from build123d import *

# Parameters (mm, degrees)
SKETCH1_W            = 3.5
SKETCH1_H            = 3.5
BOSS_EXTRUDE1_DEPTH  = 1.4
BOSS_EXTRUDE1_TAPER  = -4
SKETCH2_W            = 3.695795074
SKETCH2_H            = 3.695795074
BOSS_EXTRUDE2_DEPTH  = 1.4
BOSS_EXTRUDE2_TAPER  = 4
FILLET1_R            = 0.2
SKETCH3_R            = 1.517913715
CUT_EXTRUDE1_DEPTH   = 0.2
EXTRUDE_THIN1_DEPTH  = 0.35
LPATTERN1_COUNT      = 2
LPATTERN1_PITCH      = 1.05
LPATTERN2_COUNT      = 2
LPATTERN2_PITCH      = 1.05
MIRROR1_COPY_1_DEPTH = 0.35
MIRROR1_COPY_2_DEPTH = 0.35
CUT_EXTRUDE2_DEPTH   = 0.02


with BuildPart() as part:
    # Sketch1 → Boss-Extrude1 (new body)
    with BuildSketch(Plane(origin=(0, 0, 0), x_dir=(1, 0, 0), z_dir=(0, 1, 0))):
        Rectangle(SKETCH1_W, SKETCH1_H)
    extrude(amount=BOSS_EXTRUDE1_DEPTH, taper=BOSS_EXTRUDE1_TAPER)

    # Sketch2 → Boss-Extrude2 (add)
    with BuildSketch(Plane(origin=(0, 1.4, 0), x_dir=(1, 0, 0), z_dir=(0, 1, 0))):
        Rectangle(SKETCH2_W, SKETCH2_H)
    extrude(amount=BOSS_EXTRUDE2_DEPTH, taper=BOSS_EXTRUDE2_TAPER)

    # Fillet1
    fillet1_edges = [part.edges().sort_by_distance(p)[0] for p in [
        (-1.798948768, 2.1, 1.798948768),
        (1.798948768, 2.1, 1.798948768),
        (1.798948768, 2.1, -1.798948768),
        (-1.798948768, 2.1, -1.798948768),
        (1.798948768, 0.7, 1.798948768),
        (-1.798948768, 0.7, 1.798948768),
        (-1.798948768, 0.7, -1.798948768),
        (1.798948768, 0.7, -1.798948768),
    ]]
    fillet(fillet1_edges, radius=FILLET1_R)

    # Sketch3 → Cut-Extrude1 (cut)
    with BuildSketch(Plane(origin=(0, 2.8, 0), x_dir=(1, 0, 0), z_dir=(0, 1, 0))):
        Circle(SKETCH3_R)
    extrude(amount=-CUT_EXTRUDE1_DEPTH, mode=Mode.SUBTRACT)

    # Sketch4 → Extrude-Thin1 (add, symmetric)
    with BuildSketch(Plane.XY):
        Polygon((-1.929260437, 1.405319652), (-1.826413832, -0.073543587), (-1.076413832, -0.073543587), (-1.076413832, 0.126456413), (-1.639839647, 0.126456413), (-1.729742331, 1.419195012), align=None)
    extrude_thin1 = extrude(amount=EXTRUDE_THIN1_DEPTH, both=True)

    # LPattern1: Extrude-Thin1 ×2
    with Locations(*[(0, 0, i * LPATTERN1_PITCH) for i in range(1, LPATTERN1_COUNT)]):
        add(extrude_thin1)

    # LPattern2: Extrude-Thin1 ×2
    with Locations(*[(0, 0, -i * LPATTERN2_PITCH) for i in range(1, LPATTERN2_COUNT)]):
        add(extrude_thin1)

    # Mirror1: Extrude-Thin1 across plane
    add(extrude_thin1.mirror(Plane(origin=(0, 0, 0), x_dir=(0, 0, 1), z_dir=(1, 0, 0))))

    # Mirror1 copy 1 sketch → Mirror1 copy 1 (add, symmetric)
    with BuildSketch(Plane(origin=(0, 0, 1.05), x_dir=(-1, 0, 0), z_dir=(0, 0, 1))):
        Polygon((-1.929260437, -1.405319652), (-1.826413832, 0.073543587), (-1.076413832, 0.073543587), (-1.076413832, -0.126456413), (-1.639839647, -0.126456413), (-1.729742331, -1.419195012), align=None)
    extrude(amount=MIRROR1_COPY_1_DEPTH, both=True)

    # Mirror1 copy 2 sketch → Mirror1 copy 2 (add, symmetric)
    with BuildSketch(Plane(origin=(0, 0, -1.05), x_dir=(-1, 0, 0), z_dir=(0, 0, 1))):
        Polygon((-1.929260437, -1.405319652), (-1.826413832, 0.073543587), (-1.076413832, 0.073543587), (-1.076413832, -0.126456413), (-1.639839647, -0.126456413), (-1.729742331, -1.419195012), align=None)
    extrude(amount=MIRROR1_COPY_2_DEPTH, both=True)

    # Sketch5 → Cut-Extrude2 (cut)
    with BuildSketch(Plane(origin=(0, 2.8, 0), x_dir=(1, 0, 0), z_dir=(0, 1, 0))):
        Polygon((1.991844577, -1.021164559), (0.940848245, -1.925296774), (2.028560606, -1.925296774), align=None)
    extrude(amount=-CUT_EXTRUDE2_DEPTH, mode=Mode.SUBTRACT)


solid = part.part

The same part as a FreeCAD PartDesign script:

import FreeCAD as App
import Part
import Sketcher
from FreeCAD import Vector
Q = App.Units.Quantity


def edges_at(feature, points):
    """Names of the edges that pass closest to the given points."""
    edges = feature.Shape.Edges
    near = lambda p: min(range(len(edges)), key=lambda i: edges[i].distToShape(Part.Vertex(*p))[0])
    return sorted({f"Edge{near(p) + 1}" for p in points})

doc = App.newDocument("Part")
body = doc.addObject("PartDesign::Body", "Body")

# Sketch on XZ plane
sketch1 = doc.addObject("Sketcher::SketchObject", "Sketch")
body.addObject(sketch1)
sketch1.AttachmentSupport = (doc.XZ_Plane, [""])
sketch1.MapMode = "FlatFace"
sketch1.addGeometry([
    Part.LineSegment(Vector(-1.8, -1.8, 0), Vector(-1.8, 1.8, 0)),
    Part.LineSegment(Vector(-1.8, 1.8, 0), Vector(1.8, 1.8, 0)),
    Part.LineSegment(Vector(1.8, 1.8, 0), Vector(1.8, -1.8, 0)),
    Part.LineSegment(Vector(1.8, -1.8, 0), Vector(-1.8, -1.8, 0)),
], False)
sketch1.addConstraint([
    Sketcher.Constraint("Coincident", 0, 2, 1, 1),
    Sketcher.Constraint("Coincident", 1, 2, 2, 1),
    Sketcher.Constraint("Coincident", 2, 2, 3, 1),
    Sketcher.Constraint("Coincident", 3, 2, 0, 1),
    Sketcher.Constraint("Vertical", 0),
    Sketcher.Constraint("Horizontal", 1),
    Sketcher.Constraint("Vertical", 2),
    Sketcher.Constraint("Horizontal", 3),
    Sketcher.Constraint("Symmetric", 0, 2, 2, 2, -1, 1),
    Sketcher.Constraint("Equal", 3, 0),
    Sketcher.Constraint("DistanceX", 1, 1, 1, 2, Q("3.5 mm")),
])
pad1 = doc.addObject("PartDesign::Pad", "Pad")
body.addObject(pad1)
pad1.Profile = sketch1
pad1.Length = 1.4
pad1.Reversed = True
pad1.TaperAngle = 4

# Sketch on XZ plane
sketch2 = doc.addObject("Sketcher::SketchObject", "Sketch001")
body.addObject(sketch2)
sketch2.AttachmentSupport = (doc.XZ_Plane, [""])
sketch2.MapMode = "FlatFace"
sketch2.AttachmentOffset = App.Placement(Vector(0, 0, -1.4), App.Rotation())
sketch2.addGeometry([
    Part.LineSegment(Vector(-1.8, -1.8, 0), Vector(-1.8, 1.8, 0)),
    Part.LineSegment(Vector(-1.8, 1.8, 0), Vector(1.8, 1.8, 0)),
    Part.LineSegment(Vector(1.8, 1.8, 0), Vector(1.8, -1.8, 0)),
    Part.LineSegment(Vector(1.8, -1.8, 0), Vector(-1.8, -1.8, 0)),
], False)
sketch2.addConstraint([
    Sketcher.Constraint("Coincident", 0, 2, 1, 1),
    Sketcher.Constraint("Coincident", 1, 2, 2, 1),
    Sketcher.Constraint("Coincident", 2, 2, 3, 1),
    Sketcher.Constraint("Coincident", 3, 2, 0, 1),
    Sketcher.Constraint("Vertical", 0),
    Sketcher.Constraint("Horizontal", 1),
    Sketcher.Constraint("Vertical", 2),
    Sketcher.Constraint("Horizontal", 3),
    Sketcher.Constraint("Symmetric", 0, 2, 2, 2, -1, 1),
    Sketcher.Constraint("Equal", 3, 0),
    Sketcher.Constraint("DistanceX", 1, 1, 1, 2, Q("3.695795 mm")),
])
pad2 = doc.addObject("PartDesign::Pad", "Pad001")
body.addObject(pad2)
pad2.Profile = sketch2
pad2.Length = 1.4
pad2.Reversed = True
pad2.TaperAngle = -4
doc.recompute()

fillet = doc.addObject("PartDesign::Fillet", "Fillet")
body.addObject(fillet)
fillet.Base = (pad2, edges_at(pad2, [
    (-1.799, 2.1, 1.799),
    (1.799, 2.1, 1.799),
    (1.799, 2.1, -1.799),
    (-1.799, 2.1, -1.799),
    (1.799, 0.7, 1.799),
    (-1.799, 0.7, 1.799),
    (-1.799, 0.7, -1.799),
    (1.799, 0.7, -1.799),
]))
fillet.Radius = 0.2

# Sketch on XZ plane
sketch3 = doc.addObject("Sketcher::SketchObject", "Sketch002")
body.addObject(sketch3)
sketch3.AttachmentSupport = (doc.XZ_Plane, [""])
sketch3.MapMode = "FlatFace"
sketch3.AttachmentOffset = App.Placement(Vector(0, 0, -2.8), App.Rotation())
sketch3.addGeometry(Part.Circle(Vector(0, 0, 0), Vector(0, 0, 1), 1.5), False)
sketch3.addConstraint([
    Sketcher.Constraint("Coincident", 0, 3, -1, 1),
    Sketcher.Constraint("Diameter", 0, Q("3.035827 mm")),
])
pocket1 = doc.addObject("PartDesign::Pocket", "Pocket")
body.addObject(pocket1)
pocket1.Profile = sketch3
pocket1.Length = 0.2
pocket1.Reversed = True

# Sketch on XY plane
sketch4 = doc.addObject("Sketcher::SketchObject", "Sketch003")
body.addObject(sketch4)
sketch4.AttachmentSupport = (doc.XY_Plane, [""])
sketch4.MapMode = "FlatFace"
sketch4.addGeometry([
    Part.LineSegment(Vector(-1.93, 1.41, 0), Vector(-1.83, -0.07, 0)),  # 0
    Part.LineSegment(Vector(-1.83, -0.07, 0), Vector(-1.08, -0.07, 0)),  # 1
    Part.LineSegment(Vector(-1.08, -0.07, 0), Vector(-1.08, 0.13, 0)),  # 2
    Part.LineSegment(Vector(-1.08, 0.13, 0), Vector(-1.64, 0.13, 0)),  # 3
    Part.LineSegment(Vector(-1.64, 0.13, 0), Vector(-1.73, 1.42, 0)),  # 4
    Part.LineSegment(Vector(-1.73, 1.42, 0), Vector(-1.93, 1.41, 0)),  # 5
], False)
sketch4.addConstraint([
    Sketcher.Constraint("Coincident", 0, 2, 1, 1),
    Sketcher.Constraint("Coincident", 1, 2, 2, 1),
    Sketcher.Constraint("Coincident", 2, 2, 3, 1),
    Sketcher.Constraint("Coincident", 3, 2, 4, 1),
    Sketcher.Constraint("Coincident", 4, 2, 5, 1),
    Sketcher.Constraint("Coincident", 5, 2, 0, 1),
    Sketcher.Constraint("Horizontal", 1),
    Sketcher.Constraint("Vertical", 2),
    Sketcher.Constraint("Horizontal", 3),
    Sketcher.Constraint("Parallel", 0, 4),
    Sketcher.Constraint("Perpendicular", 4, 5),
    Sketcher.Constraint("DistanceY", 2, 1, 2, 2, Q("0.2 mm")),
    Sketcher.Constraint("Distance", 5, Q("0.2 mm")),
    Sketcher.Constraint("DistanceX", 1, 1, 1, 2, Q("0.75 mm")),
    Sketcher.Constraint("Distance", 4, Q("1.295861 mm")),
    Sketcher.Constraint("DistanceX", 3, 2, 3, 1, Q("0.563426 mm")),
    Sketcher.Constraint("DistanceX", 3, 2, -1, 1, Q("1.63984 mm")),
    Sketcher.Constraint("DistanceY", -1, 1, 5, 2, Q("1.40532 mm")),
])
pad3 = doc.addObject("PartDesign::Pad", "Pad002")
body.addObject(pad3)
pad3.Profile = sketch4
pad3.Length = 0.7
pad3.Midplane = True
doc.recompute()

linearpattern = doc.addObject("PartDesign::LinearPattern", "LinearPattern")
body.addObject(linearpattern)
linearpattern.Originals = [pad3]
linearpattern.Direction = (doc.Z_Axis, [""])
linearpattern.Mode = "offset"
linearpattern.Offset = 1.05
linearpattern.Occurrences = 2
body.Tip = linearpattern
doc.recompute()

linearpattern2 = doc.addObject("PartDesign::LinearPattern", "LinearPattern001")
body.addObject(linearpattern2)
linearpattern2.Originals = [pad3]
linearpattern2.Direction = (doc.Z_Axis, [""])
linearpattern2.Mode = "offset"
linearpattern2.Offset = 1.05
linearpattern2.Occurrences = 2
linearpattern2.Reversed = True
body.Tip = linearpattern2
doc.recompute()

mirrored = doc.addObject("PartDesign::Mirrored", "Mirrored")
body.addObject(mirrored)
mirrored.Originals = [pad3]
mirrored.MirrorPlane = (doc.YZ_Plane, [""])
body.Tip = mirrored

# Sketch on XY plane
sketch5 = doc.addObject("Sketcher::SketchObject", "Sketch004")
body.addObject(sketch5)
sketch5.AttachmentSupport = (doc.XY_Plane, [""])
sketch5.MapMode = "FlatFace"
sketch5.AttachmentOffset = App.Placement(Vector(0, 0, 1.05), App.Rotation())
sketch5.addGeometry([
    Part.LineSegment(Vector(1.83, -0.07, 0), Vector(1.93, 1.41, 0)),  # 0
    Part.LineSegment(Vector(1.93, 1.41, 0), Vector(1.73, 1.42, 0)),  # 1
    Part.LineSegment(Vector(1.73, 1.42, 0), Vector(1.64, 0.13, 0)),  # 2
    Part.LineSegment(Vector(1.64, 0.13, 0), Vector(1.08, 0.13, 0)),  # 3
    Part.LineSegment(Vector(1.08, 0.13, 0), Vector(1.08, -0.07, 0)),  # 4
    Part.LineSegment(Vector(1.08, -0.07, 0), Vector(1.83, -0.07, 0)),  # 5
], False)
sketch5.addConstraint([
    Sketcher.Constraint("Coincident", 0, 2, 1, 1),
    Sketcher.Constraint("Coincident", 1, 2, 2, 1),
    Sketcher.Constraint("Coincident", 2, 2, 3, 1),
    Sketcher.Constraint("Coincident", 3, 2, 4, 1),
    Sketcher.Constraint("Coincident", 4, 2, 5, 1),
    Sketcher.Constraint("Coincident", 5, 2, 0, 1),
    Sketcher.Constraint("Horizontal", 3),
    Sketcher.Constraint("Vertical", 4),
    Sketcher.Constraint("Horizontal", 5),
    Sketcher.Constraint("Perpendicular", 0, 1),
    Sketcher.Constraint("Perpendicular", 1, 2),
    Sketcher.Constraint("DistanceY", 4, 2, 4, 1, Q("0.2 mm")),
    Sketcher.Constraint("Distance", 1, Q("0.2 mm")),
    Sketcher.Constraint("DistanceX", 5, 1, 5, 2, Q("0.75 mm")),
    Sketcher.Constraint("Distance", 2, Q("1.295861 mm")),
    Sketcher.Constraint("DistanceX", 3, 2, 3, 1, Q("0.563426 mm")),
    Sketcher.Constraint("DistanceX", -1, 1, 0, 2, Q("1.92926 mm")),
    Sketcher.Constraint("DistanceY", -1, 1, 0, 2, Q("1.40532 mm")),
])
pad4 = doc.addObject("PartDesign::Pad", "Pad003")
body.addObject(pad4)
pad4.Profile = sketch5
pad4.Length = 0.7
pad4.Midplane = True

# Sketch on XY plane
sketch6 = doc.addObject("Sketcher::SketchObject", "Sketch005")
body.addObject(sketch6)
sketch6.AttachmentSupport = (doc.XY_Plane, [""])
sketch6.MapMode = "FlatFace"
sketch6.AttachmentOffset = App.Placement(Vector(0, 0, -1.05), App.Rotation())
sketch6.addGeometry([
    Part.LineSegment(Vector(1.83, -0.07, 0), Vector(1.93, 1.41, 0)),  # 0
    Part.LineSegment(Vector(1.93, 1.41, 0), Vector(1.73, 1.42, 0)),  # 1
    Part.LineSegment(Vector(1.73, 1.42, 0), Vector(1.64, 0.13, 0)),  # 2
    Part.LineSegment(Vector(1.64, 0.13, 0), Vector(1.08, 0.13, 0)),  # 3
    Part.LineSegment(Vector(1.08, 0.13, 0), Vector(1.08, -0.07, 0)),  # 4
    Part.LineSegment(Vector(1.08, -0.07, 0), Vector(1.83, -0.07, 0)),  # 5
], False)
sketch6.addConstraint([
    Sketcher.Constraint("Coincident", 0, 2, 1, 1),
    Sketcher.Constraint("Coincident", 1, 2, 2, 1),
    Sketcher.Constraint("Coincident", 2, 2, 3, 1),
    Sketcher.Constraint("Coincident", 3, 2, 4, 1),
    Sketcher.Constraint("Coincident", 4, 2, 5, 1),
    Sketcher.Constraint("Coincident", 5, 2, 0, 1),
    Sketcher.Constraint("Horizontal", 3),
    Sketcher.Constraint("Vertical", 4),
    Sketcher.Constraint("Horizontal", 5),
    Sketcher.Constraint("Perpendicular", 0, 1),
    Sketcher.Constraint("Perpendicular", 1, 2),
    Sketcher.Constraint("DistanceY", 4, 2, 4, 1, Q("0.2 mm")),
    Sketcher.Constraint("Distance", 1, Q("0.2 mm")),
    Sketcher.Constraint("DistanceX", 5, 1, 5, 2, Q("0.75 mm")),
    Sketcher.Constraint("Distance", 2, Q("1.295861 mm")),
    Sketcher.Constraint("DistanceX", 3, 2, 3, 1, Q("0.563426 mm")),
    Sketcher.Constraint("DistanceX", -1, 1, 0, 2, Q("1.92926 mm")),
    Sketcher.Constraint("DistanceY", -1, 1, 0, 2, Q("1.40532 mm")),
])
pad5 = doc.addObject("PartDesign::Pad", "Pad004")
body.addObject(pad5)
pad5.Profile = sketch6
pad5.Length = 0.7
pad5.Midplane = True

# Sketch on XZ plane
sketch7 = doc.addObject("Sketcher::SketchObject", "Sketch006")
body.addObject(sketch7)
sketch7.AttachmentSupport = (doc.XZ_Plane, [""])
sketch7.MapMode = "FlatFace"
sketch7.AttachmentOffset = App.Placement(Vector(0, 0, -2.8), App.Rotation())
sketch7.addGeometry([
    Part.LineSegment(Vector(2, 1, 0), Vector(0.9, 1.9, 0)),
    Part.LineSegment(Vector(0.9, 1.9, 0), Vector(2, 1.9, 0)),
    Part.LineSegment(Vector(2, 1.9, 0), Vector(2, 1, 0)),
], False)
sketch7.addConstraint([
    Sketcher.Constraint("Coincident", 0, 2, 1, 1),
    Sketcher.Constraint("Coincident", 1, 2, 2, 1),
    Sketcher.Constraint("Coincident", 2, 2, 0, 1),
    Sketcher.Constraint("Horizontal", 1),
    Sketcher.Constraint("Distance", 0, Q("1.38638 mm")),
    Sketcher.Constraint("DistanceX", 1, 1, 1, 2, Q("1.087712 mm")),
    Sketcher.Constraint("DistanceX", -1, 1, 0, 2, Q("0.940848 mm")),
    Sketcher.Constraint("Distance", 2, Q("0.904877 mm")),
    Sketcher.Constraint("DistanceY", -1, 1, 0, 2, Q("1.925297 mm")),
])
pocket2 = doc.addObject("PartDesign::Pocket", "Pocket001")
body.addObject(pocket2)
pocket2.Profile = sketch7
pocket2.Length = 0.02
pocket2.Reversed = True

doc.recompute()
